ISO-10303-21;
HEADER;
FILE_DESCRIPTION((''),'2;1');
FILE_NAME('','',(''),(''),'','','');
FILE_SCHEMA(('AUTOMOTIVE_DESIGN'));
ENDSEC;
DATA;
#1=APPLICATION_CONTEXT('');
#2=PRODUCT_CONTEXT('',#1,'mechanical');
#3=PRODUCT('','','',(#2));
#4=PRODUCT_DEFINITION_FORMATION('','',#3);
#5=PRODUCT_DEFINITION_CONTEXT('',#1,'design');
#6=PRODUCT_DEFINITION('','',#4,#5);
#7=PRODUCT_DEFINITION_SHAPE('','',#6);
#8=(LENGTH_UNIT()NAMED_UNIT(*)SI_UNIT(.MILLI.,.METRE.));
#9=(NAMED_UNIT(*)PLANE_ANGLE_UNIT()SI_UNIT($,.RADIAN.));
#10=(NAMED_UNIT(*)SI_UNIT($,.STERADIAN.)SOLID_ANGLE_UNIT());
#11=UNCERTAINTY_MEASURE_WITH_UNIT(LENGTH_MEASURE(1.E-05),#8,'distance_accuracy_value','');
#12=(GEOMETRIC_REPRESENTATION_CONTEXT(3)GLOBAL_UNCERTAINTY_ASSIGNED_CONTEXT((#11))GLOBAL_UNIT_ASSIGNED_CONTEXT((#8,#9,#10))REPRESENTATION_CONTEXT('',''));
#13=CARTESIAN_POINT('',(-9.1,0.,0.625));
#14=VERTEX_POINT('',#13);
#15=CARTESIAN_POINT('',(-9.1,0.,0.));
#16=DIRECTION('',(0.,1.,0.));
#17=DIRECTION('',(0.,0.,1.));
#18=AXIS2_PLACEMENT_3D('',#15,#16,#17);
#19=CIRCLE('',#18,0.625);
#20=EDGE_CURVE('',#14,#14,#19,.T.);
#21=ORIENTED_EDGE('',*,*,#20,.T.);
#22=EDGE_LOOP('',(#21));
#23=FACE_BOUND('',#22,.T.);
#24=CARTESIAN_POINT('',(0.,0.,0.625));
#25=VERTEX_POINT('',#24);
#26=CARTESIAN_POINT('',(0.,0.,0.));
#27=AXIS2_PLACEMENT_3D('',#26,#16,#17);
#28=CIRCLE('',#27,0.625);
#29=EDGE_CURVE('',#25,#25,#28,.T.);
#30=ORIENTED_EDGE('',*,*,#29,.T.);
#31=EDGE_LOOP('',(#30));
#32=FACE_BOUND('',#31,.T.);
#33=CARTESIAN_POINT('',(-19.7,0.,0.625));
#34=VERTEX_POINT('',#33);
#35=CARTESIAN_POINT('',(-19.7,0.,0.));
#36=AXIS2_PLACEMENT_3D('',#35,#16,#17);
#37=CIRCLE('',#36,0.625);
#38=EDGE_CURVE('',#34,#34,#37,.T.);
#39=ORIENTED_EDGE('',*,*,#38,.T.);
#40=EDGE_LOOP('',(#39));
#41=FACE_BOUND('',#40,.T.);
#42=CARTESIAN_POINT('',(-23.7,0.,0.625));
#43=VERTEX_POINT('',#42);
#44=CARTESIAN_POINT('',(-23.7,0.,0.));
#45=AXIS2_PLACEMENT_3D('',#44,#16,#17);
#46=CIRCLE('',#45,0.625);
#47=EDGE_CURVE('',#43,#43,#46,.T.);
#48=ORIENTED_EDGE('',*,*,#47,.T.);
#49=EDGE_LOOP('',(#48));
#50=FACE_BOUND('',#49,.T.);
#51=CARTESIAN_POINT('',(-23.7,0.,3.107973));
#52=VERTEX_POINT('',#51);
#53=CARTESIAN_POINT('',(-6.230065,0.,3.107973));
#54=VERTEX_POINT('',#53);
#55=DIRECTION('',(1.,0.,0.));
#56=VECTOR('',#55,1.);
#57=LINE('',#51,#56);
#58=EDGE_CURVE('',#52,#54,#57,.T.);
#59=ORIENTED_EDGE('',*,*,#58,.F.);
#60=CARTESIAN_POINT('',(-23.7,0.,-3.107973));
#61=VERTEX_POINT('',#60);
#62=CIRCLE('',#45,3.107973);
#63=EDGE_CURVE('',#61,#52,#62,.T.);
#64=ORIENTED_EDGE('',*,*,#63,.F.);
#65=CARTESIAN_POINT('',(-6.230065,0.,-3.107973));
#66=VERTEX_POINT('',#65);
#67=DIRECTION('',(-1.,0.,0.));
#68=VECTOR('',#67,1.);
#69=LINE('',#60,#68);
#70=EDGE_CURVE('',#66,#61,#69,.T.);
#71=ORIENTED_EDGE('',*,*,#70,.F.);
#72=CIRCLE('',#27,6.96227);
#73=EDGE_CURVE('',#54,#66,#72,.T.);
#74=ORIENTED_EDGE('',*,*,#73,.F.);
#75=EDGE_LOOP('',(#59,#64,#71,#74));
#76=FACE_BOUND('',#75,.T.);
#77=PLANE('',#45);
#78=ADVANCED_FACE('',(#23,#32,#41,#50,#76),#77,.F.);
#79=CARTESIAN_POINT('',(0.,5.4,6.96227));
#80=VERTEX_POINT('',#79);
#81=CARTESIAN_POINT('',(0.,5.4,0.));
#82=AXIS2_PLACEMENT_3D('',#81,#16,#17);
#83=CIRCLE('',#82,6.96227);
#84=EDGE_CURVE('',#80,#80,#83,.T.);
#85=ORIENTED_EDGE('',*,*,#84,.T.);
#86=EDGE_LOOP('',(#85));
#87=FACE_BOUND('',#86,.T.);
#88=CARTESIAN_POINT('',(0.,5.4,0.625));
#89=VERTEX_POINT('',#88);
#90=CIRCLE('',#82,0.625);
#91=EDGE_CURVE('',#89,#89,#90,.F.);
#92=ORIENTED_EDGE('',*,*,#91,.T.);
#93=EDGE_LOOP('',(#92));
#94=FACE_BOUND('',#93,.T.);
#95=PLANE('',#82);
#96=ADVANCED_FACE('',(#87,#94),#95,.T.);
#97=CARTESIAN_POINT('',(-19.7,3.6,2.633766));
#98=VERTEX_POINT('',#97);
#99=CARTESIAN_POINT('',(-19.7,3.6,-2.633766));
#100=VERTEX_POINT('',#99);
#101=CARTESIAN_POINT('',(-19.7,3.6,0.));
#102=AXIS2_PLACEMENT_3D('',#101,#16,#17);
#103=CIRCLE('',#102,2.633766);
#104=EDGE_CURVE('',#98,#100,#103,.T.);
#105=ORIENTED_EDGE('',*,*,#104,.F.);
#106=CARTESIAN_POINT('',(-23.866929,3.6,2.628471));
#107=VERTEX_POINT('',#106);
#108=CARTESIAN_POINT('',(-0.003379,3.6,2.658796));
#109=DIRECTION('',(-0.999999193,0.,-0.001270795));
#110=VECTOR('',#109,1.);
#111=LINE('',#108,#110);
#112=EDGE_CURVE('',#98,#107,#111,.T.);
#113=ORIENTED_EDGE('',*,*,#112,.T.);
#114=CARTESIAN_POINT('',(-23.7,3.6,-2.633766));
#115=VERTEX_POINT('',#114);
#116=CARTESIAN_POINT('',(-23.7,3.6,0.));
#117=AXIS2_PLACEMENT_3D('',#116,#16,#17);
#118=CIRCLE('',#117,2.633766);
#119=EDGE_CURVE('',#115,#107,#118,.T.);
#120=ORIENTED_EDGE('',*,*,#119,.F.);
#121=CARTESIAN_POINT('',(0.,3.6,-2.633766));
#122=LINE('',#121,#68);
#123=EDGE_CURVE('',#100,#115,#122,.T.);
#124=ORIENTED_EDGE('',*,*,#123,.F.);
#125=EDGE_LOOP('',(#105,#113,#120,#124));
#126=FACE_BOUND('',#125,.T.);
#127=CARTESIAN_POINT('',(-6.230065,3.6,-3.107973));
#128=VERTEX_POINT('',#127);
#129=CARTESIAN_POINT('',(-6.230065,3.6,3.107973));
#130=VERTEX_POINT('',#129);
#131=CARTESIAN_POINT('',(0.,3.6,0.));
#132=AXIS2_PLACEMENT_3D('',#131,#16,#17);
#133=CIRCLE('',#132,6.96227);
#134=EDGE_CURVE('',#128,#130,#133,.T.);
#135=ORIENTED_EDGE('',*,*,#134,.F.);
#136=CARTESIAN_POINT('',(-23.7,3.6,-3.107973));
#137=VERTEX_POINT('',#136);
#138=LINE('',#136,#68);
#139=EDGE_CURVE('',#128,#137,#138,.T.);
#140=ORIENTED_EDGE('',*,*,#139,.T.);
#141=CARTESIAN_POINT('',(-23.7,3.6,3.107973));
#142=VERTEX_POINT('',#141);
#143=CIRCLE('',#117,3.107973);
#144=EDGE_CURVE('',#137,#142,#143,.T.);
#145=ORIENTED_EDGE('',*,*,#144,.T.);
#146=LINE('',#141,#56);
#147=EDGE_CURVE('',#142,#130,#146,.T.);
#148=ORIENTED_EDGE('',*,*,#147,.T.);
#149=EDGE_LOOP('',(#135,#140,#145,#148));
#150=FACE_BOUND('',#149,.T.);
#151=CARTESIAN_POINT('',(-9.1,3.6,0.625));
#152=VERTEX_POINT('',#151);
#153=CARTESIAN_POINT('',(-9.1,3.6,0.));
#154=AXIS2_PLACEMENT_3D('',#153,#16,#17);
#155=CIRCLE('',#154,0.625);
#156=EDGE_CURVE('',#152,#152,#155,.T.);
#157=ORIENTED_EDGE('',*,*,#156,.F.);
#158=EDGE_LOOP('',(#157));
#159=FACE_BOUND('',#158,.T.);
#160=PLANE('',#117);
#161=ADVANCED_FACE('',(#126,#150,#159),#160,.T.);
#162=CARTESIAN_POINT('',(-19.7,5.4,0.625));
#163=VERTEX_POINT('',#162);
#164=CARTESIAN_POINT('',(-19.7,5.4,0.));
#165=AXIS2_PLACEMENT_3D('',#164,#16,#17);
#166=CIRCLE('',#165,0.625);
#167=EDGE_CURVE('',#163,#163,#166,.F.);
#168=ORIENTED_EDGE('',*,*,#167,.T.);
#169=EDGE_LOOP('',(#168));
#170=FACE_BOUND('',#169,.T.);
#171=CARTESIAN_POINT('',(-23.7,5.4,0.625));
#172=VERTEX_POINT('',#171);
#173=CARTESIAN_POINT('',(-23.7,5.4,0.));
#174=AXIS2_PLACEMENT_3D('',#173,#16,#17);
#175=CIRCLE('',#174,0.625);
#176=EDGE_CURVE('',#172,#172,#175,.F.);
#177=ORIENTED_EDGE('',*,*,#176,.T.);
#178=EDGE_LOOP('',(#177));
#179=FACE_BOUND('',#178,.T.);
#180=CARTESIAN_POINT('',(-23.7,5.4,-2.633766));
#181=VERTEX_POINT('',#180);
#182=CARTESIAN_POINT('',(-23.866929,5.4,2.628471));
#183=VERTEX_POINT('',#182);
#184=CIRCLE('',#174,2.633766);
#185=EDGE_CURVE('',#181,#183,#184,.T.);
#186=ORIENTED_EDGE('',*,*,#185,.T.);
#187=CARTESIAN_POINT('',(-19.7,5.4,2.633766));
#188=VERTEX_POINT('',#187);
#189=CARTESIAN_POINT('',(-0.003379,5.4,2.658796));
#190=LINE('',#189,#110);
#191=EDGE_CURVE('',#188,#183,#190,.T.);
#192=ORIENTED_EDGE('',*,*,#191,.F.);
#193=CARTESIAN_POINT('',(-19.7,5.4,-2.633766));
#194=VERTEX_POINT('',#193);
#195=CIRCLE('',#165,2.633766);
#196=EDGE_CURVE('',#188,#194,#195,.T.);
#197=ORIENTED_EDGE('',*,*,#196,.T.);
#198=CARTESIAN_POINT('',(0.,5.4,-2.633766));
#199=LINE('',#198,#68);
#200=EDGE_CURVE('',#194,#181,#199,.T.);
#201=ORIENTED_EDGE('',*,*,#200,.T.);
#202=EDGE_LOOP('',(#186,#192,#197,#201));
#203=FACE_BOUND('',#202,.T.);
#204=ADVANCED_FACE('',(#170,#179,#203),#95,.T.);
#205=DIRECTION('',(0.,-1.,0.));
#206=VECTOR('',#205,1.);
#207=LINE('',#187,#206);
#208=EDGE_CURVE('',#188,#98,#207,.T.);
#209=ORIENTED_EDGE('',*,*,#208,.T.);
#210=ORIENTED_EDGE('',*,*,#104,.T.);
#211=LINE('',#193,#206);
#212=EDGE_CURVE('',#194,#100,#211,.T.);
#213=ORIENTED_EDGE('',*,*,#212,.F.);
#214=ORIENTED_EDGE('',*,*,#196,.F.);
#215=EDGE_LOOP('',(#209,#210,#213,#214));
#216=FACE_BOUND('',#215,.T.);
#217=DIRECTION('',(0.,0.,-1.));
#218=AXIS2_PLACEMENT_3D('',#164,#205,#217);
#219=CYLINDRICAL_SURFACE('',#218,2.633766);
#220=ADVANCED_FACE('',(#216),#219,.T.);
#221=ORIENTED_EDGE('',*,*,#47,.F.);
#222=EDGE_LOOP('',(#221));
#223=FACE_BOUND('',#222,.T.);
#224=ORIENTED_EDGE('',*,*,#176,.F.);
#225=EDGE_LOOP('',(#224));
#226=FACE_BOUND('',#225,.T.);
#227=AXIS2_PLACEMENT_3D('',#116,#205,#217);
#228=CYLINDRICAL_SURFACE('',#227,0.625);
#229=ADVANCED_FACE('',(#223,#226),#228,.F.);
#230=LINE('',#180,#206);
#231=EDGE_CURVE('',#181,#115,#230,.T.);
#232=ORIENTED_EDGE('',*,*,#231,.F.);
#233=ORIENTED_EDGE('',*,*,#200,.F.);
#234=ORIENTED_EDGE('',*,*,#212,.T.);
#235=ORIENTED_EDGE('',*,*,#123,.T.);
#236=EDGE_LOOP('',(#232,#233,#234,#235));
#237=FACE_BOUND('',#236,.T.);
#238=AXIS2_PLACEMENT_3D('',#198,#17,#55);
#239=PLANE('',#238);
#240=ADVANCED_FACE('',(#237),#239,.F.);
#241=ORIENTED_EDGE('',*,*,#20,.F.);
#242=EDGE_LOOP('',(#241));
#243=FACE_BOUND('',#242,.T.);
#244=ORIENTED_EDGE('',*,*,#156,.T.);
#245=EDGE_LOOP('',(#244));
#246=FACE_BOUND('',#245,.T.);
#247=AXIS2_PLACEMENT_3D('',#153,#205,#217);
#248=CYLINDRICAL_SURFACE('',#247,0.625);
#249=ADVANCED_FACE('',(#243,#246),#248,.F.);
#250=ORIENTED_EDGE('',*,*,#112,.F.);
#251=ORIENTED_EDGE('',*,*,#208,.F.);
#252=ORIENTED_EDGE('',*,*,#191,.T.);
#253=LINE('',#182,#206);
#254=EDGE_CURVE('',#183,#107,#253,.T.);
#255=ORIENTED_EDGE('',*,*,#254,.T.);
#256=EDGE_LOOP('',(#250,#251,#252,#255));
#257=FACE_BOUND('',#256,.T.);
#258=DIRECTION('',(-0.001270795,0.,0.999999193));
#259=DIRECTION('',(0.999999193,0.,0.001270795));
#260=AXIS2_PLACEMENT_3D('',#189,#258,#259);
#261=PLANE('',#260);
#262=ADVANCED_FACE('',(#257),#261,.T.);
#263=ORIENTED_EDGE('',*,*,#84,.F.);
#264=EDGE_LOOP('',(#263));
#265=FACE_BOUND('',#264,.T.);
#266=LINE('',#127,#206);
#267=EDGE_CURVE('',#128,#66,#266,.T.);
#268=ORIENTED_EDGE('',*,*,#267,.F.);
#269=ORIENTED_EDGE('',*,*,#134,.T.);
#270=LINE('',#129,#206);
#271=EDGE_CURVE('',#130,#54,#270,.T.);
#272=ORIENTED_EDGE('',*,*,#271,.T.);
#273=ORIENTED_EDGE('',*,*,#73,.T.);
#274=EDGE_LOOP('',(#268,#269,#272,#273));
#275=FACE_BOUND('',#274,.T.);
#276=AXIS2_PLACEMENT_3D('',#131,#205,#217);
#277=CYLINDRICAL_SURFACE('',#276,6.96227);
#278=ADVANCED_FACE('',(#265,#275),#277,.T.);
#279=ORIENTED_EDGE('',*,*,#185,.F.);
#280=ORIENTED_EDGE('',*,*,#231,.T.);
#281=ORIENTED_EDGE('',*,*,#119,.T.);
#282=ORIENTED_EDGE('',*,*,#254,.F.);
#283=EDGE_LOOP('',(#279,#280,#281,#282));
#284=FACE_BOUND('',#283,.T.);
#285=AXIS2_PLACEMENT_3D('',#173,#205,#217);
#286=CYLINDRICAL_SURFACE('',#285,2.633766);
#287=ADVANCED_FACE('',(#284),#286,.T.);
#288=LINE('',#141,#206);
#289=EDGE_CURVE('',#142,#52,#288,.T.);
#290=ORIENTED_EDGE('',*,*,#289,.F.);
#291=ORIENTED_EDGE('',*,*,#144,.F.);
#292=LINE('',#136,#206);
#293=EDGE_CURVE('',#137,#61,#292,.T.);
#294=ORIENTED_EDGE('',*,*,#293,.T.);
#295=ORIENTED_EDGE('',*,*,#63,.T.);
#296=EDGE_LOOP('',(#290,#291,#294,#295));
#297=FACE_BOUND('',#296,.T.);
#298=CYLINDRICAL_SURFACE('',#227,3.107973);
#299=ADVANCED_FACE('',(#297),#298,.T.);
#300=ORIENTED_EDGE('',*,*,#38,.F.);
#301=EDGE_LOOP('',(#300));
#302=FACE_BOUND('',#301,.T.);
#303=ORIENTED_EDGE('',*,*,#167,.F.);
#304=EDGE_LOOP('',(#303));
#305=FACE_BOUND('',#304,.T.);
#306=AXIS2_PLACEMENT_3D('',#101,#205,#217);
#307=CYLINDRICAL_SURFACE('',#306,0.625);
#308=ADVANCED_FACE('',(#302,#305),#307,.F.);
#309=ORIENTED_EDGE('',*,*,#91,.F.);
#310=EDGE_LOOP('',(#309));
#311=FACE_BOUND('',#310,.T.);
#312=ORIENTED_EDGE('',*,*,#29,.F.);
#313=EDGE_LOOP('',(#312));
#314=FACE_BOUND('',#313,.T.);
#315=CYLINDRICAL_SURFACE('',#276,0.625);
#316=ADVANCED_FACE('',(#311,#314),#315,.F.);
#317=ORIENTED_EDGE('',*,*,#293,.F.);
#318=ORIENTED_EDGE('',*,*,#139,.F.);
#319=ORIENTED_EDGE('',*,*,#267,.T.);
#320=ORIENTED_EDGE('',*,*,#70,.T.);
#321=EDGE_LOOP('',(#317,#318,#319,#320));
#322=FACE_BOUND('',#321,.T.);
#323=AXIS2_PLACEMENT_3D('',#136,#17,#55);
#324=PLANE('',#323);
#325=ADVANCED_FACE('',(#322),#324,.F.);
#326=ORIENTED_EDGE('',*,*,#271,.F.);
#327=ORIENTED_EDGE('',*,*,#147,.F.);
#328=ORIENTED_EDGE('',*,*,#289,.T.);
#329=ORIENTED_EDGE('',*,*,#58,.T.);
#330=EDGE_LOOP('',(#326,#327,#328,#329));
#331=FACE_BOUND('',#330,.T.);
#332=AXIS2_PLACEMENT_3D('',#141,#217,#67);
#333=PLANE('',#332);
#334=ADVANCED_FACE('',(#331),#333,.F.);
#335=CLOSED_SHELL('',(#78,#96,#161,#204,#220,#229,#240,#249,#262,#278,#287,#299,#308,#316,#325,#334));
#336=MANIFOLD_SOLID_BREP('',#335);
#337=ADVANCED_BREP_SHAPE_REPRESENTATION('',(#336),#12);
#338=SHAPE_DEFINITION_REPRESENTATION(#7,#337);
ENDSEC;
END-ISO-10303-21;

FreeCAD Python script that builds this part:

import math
import FreeCAD as App
import Part
import Sketcher

doc = App.newDocument("Part")
body = doc.addObject("PartDesign::Body", "Body")

sketch1 = body.newObject("Sketcher::SketchObject", "Sketch")
sketch1.AttachmentSupport = (doc.getObject("XZ_Plane"), [""])
sketch1.MapMode = "FlatFace"
sketch1.addGeometry([
    Part.LineSegment(App.Vector(-6.2, -3.1, 0), App.Vector(-23.7, -3.1, 0)),
    Part.ArcOfCircle(Part.Circle(App.Vector(-23.7, 0, 0), App.Vector(0, 0, 1), 3.1), math.radians(90), math.radians(270)),
    Part.LineSegment(App.Vector(-23.7, 3.1, 0), App.Vector(-6.2, 3.1, 0)),
    Part.ArcOfCircle(Part.Circle(App.Vector(0, 0, 0), App.Vector(0, 0, 1), 7), math.radians(-153), math.radians(153)),
    Part.Circle(App.Vector(0, 0, 0), App.Vector(0, 0, 1), 0.6),
    Part.Circle(App.Vector(-9.1, 0, 0), App.Vector(0, 0, 1), 0.6),
    Part.Circle(App.Vector(-19.7, 0, 0), App.Vector(0, 0, 1), 0.6),
    Part.Circle(App.Vector(-23.7, 0, 0), App.Vector(0, 0, 1), 0.6),
], False)
sketch1.addConstraint([
    Sketcher.Constraint("Tangent", 0, 2, 1, 2),
    Sketcher.Constraint("Tangent", 1, 1, 2, 1),
    Sketcher.Constraint("Coincident", 2, 2, 3, 2),
    Sketcher.Constraint("Coincident", 3, 1, 0, 1),
    Sketcher.Constraint("Horizontal", 0),
    Sketcher.Constraint("Horizontal", 2),
    Sketcher.Constraint("Coincident", 3, 3, -1, 1),
    Sketcher.Constraint("Coincident", 4, 3, -1, 1),
    Sketcher.Constraint("Coincident", 7, 3, 1, 3),
    Sketcher.Constraint("Equal", 4, 5),
    Sketcher.Constraint("Equal", 5, 6),
    Sketcher.Constraint("Equal", 6, 7),
    Sketcher.Constraint("PointOnObject", 1, 3, -1),
    Sketcher.Constraint("PointOnObject", 5, 3, -1),
    Sketcher.Constraint("PointOnObject", 6, 3, -1),
    Sketcher.Constraint("Diameter", 4, 1.25),
    Sketcher.Constraint("DistanceX", 1, 3, 6, 3, 4.0),
    Sketcher.Constraint("DistanceX", 1, 3, -1, 1, 23.7),
    Sketcher.Constraint("DistanceX", 5, 3, -1, 1, 9.1),
    Sketcher.Constraint("Radius", 3, 6.96227),
    Sketcher.Constraint("Radius", 1, 3.107973),
])
pad1 = body.newObject("PartDesign::Pad", "Pad")
pad1.Profile = sketch1
pad1.Length = 3.6
pad1.Reversed = True

sketch2 = body.newObject("Sketcher::SketchObject", "Sketch001")
sketch2.AttachmentSupport = (doc.getObject("XZ_Plane"), [""])
sketch2.MapMode = "FlatFace"
sketch2.AttachmentOffset = App.Placement(App.Vector(0, 0, -3.6), App.Rotation())
sketch2.addGeometry([
    Part.ArcOfCircle(Part.Circle(App.Vector(-19.7, 0, 0), App.Vector(0, 0, 1), 2.634), math.radians(-90), math.radians(90)),
    Part.LineSegment(App.Vector(-19.7, -2.634, 0), App.Vector(-23.7, -2.634, 0)),
    Part.ArcOfCircle(Part.Circle(App.Vector(-23.7, 0, 0), App.Vector(0, 0, 1), 2.634), math.radians(94), math.radians(270)),
    Part.LineSegment(App.Vector(-23.867, 2.628, 0), App.Vector(-23.54, 2.629, 0)),
    Part.LineSegment(App.Vector(-23.54, 2.629, 0), App.Vector(-19.707, 2.634, 0)),
    Part.LineSegment(App.Vector(-19.707, 2.634, 0), App.Vector(-19.7, 2.634, 0)),
    Part.Circle(App.Vector(-23.7, 0, 0), App.Vector(0, 0, 1), 0.625),
    Part.Circle(App.Vector(-19.7, 0, 0), App.Vector(0, 0, 1), 0.625),
    Part.ArcOfCircle(Part.Circle(App.Vector(0, 0, 0), App.Vector(0, 0, 1), 6.962), math.radians(0), math.radians(153)),
    Part.ArcOfCircle(Part.Circle(App.Vector(0, 0, 0), App.Vector(0, 0, 1), 6.962), math.radians(-153), math.radians(0)),
    Part.ArcOfCircle(Part.Circle(App.Vector(0, 0, 0), App.Vector(0, 0, 1), 6.962), math.radians(153), math.radians(207)),
    Part.Circle(App.Vector(0, 0, 0), App.Vector(0, 0, 1), 0.625),
], False)
sketch2.addConstraint([
    Sketcher.Constraint("Tangent", 0, 1, 1, 1),
    Sketcher.Constraint("Tangent", 1, 2, 2, 2),
    Sketcher.Constraint("Coincident", 2, 1, 3, 1),
    Sketcher.Constraint("Coincident", 3, 2, 4, 1),
    Sketcher.Constraint("Coincident", 4, 2, 5, 1),
    Sketcher.Constraint("Coincident", 5, 2, 0, 2),
    Sketcher.Constraint("Tangent", 8, 1, 9, 2),
    Sketcher.Constraint("Tangent", 9, 1, 10, 2),
    Sketcher.Constraint("Tangent", 10, 1, 8, 2),
    Sketcher.Constraint("Horizontal", 1),
    Sketcher.Constraint("Coincident", 8, 3, -1, 1),
    Sketcher.Constraint("Coincident", 11, 3, -1, 1),
    Sketcher.Constraint("Coincident", 6, 3, 2, 3),
    Sketcher.Constraint("Coincident", 7, 3, 0, 3),
    Sketcher.Constraint("Equal", 0, 2),
    Sketcher.Constraint("Equal", 6, 7),
    Sketcher.Constraint("Equal", 7, 11),
    Sketcher.Constraint("Symmetric", 0, 1, 5, 2, -1),
    Sketcher.Constraint("PointOnObject", 8, 1, -1),
    Sketcher.Constraint("Parallel", 3, 4),
    Sketcher.Constraint("Parallel", 4, 5),
    Sketcher.Constraint("Vertical", 9, 1, 10, 1),
    Sketcher.Constraint("Diameter", 6, 1.25),
    Sketcher.Constraint("DistanceX", 1, 2, 1, 1, 4.0),
    Sketcher.Constraint("DistanceX", 0, 3, -1, 1, 19.7),
    Sketcher.Constraint("Radius", 8, 6.96227),
    Sketcher.Constraint("Radius", 0, 2.633766),
    Sketcher.Constraint("Distance", 4, 3.833061),
    Sketcher.Constraint("DistanceX", 2, 1, -1, 1, 23.866929),
    Sketcher.Constraint("Distance", 3, 0.327177),
    Sketcher.Constraint("DistanceX", 9, 1, -1, 1, 6.230065),
])
pad2 = body.newObject("PartDesign::Pad", "Pad001")
pad2.Profile = sketch2
pad2.Length = 1.8
pad2.Reversed = True

doc.recompute()
